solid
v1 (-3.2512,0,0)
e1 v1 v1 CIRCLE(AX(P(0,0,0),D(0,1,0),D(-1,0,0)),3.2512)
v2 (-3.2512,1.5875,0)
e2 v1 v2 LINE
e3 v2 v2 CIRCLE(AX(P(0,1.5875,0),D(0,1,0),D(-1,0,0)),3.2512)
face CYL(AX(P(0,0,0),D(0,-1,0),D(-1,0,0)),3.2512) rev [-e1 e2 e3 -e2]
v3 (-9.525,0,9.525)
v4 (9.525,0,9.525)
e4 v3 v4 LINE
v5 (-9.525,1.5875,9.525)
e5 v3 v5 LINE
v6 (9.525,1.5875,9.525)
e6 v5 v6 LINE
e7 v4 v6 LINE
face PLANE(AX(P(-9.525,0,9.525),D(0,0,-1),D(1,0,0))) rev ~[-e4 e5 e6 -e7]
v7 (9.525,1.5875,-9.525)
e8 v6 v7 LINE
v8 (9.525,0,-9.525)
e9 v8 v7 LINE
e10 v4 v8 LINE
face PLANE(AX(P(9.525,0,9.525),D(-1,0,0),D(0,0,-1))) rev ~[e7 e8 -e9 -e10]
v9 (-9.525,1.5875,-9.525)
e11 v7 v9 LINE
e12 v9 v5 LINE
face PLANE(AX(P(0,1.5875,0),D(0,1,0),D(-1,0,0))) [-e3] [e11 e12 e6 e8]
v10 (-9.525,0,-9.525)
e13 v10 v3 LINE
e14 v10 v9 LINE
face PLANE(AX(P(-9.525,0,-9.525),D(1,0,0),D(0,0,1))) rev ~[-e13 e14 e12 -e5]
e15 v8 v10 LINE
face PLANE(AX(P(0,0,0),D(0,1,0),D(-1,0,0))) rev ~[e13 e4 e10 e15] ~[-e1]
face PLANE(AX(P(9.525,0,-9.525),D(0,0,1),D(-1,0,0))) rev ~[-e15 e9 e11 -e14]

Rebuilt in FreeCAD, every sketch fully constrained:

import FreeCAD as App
import Part
import Sketcher
from FreeCAD import Vector
Q = App.Units.Quantity

doc = App.newDocument("Part")
params = doc.addObject("Spreadsheet::Sheet", "Params")
for row, (alias, value) in enumerate([
    ("sketch1_diameter", "0.256 in"),
    ("sketch1_width", "0.75 in"),
    ("pad1_length", "0.0625 in"),
], start=1):
    params.set(f"A{row}", alias)
    params.set(f"B{row}", "=" + value)
    params.setAlias(f"B{row}", alias)

body = doc.addObject("PartDesign::Body", "Body")

# Sketch on XZ plane
sketch1 = body.newObject("Sketcher::SketchObject", "Sketch")
sketch1.AttachmentSupport = (doc.getObject("XZ_Plane"), [""])
sketch1.MapMode = "FlatFace"
sketch1.addGeometry(Part.LineSegment(Vector(9.525, 9.525, 0), Vector(9.525, -9.525, 0)), False)
sketch1.addGeometry(Part.LineSegment(Vector(9.525, -9.525, 0), Vector(-9.525, -9.525, 0)), False)
sketch1.addGeometry(Part.LineSegment(Vector(-9.525, -9.525, 0), Vector(-9.525, 9.525, 0)), False)
sketch1.addGeometry(Part.LineSegment(Vector(-9.525, 9.525, 0), Vector(9.525, 9.525, 0)), False)
sketch1.addGeometry(Part.Circle(Vector(0, 0, 0), Vector(0, 0, 1), 3.2512), False)
sketch1.addConstraint(Sketcher.Constraint("Coincident", 0, 2, 1, 1))
sketch1.addConstraint(Sketcher.Constraint("Coincident", 1, 2, 2, 1))
sketch1.addConstraint(Sketcher.Constraint("Coincident", 2, 2, 3, 1))
sketch1.addConstraint(Sketcher.Constraint("Coincident", 3, 2, 0, 1))
sketch1.addConstraint(Sketcher.Constraint("Vertical", 0))
sketch1.addConstraint(Sketcher.Constraint("Horizontal", 1))
sketch1.addConstraint(Sketcher.Constraint("Vertical", 2))
sketch1.addConstraint(Sketcher.Constraint("Horizontal", 3))
sketch1.addConstraint(Sketcher.Constraint("Coincident", 4, 3, -1, 1))
sketch1.addConstraint(Sketcher.Constraint("Symmetric", 0, 2, 2, 2, -1, 1))
sketch1.addConstraint(Sketcher.Constraint("Equal", 3, 0))
sketch1.addConstraint(Sketcher.Constraint("Diameter", 4, Q("0.256 in")))
sketch1.addConstraint(Sketcher.Constraint("DistanceX", 1, 2, 1, 1, Q("0.75 in")))
sketch1.setExpression("Constraints[11]", "Params.sketch1_diameter")
sketch1.setExpression("Constraints[12]", "Params.sketch1_width")
pad1 = body.newObject("PartDesign::Pad", "Pad")
pad1.Profile = sketch1
pad1.setExpression("Length", "Params.pad1_length")
pad1.Reversed = True

doc.recompute()
